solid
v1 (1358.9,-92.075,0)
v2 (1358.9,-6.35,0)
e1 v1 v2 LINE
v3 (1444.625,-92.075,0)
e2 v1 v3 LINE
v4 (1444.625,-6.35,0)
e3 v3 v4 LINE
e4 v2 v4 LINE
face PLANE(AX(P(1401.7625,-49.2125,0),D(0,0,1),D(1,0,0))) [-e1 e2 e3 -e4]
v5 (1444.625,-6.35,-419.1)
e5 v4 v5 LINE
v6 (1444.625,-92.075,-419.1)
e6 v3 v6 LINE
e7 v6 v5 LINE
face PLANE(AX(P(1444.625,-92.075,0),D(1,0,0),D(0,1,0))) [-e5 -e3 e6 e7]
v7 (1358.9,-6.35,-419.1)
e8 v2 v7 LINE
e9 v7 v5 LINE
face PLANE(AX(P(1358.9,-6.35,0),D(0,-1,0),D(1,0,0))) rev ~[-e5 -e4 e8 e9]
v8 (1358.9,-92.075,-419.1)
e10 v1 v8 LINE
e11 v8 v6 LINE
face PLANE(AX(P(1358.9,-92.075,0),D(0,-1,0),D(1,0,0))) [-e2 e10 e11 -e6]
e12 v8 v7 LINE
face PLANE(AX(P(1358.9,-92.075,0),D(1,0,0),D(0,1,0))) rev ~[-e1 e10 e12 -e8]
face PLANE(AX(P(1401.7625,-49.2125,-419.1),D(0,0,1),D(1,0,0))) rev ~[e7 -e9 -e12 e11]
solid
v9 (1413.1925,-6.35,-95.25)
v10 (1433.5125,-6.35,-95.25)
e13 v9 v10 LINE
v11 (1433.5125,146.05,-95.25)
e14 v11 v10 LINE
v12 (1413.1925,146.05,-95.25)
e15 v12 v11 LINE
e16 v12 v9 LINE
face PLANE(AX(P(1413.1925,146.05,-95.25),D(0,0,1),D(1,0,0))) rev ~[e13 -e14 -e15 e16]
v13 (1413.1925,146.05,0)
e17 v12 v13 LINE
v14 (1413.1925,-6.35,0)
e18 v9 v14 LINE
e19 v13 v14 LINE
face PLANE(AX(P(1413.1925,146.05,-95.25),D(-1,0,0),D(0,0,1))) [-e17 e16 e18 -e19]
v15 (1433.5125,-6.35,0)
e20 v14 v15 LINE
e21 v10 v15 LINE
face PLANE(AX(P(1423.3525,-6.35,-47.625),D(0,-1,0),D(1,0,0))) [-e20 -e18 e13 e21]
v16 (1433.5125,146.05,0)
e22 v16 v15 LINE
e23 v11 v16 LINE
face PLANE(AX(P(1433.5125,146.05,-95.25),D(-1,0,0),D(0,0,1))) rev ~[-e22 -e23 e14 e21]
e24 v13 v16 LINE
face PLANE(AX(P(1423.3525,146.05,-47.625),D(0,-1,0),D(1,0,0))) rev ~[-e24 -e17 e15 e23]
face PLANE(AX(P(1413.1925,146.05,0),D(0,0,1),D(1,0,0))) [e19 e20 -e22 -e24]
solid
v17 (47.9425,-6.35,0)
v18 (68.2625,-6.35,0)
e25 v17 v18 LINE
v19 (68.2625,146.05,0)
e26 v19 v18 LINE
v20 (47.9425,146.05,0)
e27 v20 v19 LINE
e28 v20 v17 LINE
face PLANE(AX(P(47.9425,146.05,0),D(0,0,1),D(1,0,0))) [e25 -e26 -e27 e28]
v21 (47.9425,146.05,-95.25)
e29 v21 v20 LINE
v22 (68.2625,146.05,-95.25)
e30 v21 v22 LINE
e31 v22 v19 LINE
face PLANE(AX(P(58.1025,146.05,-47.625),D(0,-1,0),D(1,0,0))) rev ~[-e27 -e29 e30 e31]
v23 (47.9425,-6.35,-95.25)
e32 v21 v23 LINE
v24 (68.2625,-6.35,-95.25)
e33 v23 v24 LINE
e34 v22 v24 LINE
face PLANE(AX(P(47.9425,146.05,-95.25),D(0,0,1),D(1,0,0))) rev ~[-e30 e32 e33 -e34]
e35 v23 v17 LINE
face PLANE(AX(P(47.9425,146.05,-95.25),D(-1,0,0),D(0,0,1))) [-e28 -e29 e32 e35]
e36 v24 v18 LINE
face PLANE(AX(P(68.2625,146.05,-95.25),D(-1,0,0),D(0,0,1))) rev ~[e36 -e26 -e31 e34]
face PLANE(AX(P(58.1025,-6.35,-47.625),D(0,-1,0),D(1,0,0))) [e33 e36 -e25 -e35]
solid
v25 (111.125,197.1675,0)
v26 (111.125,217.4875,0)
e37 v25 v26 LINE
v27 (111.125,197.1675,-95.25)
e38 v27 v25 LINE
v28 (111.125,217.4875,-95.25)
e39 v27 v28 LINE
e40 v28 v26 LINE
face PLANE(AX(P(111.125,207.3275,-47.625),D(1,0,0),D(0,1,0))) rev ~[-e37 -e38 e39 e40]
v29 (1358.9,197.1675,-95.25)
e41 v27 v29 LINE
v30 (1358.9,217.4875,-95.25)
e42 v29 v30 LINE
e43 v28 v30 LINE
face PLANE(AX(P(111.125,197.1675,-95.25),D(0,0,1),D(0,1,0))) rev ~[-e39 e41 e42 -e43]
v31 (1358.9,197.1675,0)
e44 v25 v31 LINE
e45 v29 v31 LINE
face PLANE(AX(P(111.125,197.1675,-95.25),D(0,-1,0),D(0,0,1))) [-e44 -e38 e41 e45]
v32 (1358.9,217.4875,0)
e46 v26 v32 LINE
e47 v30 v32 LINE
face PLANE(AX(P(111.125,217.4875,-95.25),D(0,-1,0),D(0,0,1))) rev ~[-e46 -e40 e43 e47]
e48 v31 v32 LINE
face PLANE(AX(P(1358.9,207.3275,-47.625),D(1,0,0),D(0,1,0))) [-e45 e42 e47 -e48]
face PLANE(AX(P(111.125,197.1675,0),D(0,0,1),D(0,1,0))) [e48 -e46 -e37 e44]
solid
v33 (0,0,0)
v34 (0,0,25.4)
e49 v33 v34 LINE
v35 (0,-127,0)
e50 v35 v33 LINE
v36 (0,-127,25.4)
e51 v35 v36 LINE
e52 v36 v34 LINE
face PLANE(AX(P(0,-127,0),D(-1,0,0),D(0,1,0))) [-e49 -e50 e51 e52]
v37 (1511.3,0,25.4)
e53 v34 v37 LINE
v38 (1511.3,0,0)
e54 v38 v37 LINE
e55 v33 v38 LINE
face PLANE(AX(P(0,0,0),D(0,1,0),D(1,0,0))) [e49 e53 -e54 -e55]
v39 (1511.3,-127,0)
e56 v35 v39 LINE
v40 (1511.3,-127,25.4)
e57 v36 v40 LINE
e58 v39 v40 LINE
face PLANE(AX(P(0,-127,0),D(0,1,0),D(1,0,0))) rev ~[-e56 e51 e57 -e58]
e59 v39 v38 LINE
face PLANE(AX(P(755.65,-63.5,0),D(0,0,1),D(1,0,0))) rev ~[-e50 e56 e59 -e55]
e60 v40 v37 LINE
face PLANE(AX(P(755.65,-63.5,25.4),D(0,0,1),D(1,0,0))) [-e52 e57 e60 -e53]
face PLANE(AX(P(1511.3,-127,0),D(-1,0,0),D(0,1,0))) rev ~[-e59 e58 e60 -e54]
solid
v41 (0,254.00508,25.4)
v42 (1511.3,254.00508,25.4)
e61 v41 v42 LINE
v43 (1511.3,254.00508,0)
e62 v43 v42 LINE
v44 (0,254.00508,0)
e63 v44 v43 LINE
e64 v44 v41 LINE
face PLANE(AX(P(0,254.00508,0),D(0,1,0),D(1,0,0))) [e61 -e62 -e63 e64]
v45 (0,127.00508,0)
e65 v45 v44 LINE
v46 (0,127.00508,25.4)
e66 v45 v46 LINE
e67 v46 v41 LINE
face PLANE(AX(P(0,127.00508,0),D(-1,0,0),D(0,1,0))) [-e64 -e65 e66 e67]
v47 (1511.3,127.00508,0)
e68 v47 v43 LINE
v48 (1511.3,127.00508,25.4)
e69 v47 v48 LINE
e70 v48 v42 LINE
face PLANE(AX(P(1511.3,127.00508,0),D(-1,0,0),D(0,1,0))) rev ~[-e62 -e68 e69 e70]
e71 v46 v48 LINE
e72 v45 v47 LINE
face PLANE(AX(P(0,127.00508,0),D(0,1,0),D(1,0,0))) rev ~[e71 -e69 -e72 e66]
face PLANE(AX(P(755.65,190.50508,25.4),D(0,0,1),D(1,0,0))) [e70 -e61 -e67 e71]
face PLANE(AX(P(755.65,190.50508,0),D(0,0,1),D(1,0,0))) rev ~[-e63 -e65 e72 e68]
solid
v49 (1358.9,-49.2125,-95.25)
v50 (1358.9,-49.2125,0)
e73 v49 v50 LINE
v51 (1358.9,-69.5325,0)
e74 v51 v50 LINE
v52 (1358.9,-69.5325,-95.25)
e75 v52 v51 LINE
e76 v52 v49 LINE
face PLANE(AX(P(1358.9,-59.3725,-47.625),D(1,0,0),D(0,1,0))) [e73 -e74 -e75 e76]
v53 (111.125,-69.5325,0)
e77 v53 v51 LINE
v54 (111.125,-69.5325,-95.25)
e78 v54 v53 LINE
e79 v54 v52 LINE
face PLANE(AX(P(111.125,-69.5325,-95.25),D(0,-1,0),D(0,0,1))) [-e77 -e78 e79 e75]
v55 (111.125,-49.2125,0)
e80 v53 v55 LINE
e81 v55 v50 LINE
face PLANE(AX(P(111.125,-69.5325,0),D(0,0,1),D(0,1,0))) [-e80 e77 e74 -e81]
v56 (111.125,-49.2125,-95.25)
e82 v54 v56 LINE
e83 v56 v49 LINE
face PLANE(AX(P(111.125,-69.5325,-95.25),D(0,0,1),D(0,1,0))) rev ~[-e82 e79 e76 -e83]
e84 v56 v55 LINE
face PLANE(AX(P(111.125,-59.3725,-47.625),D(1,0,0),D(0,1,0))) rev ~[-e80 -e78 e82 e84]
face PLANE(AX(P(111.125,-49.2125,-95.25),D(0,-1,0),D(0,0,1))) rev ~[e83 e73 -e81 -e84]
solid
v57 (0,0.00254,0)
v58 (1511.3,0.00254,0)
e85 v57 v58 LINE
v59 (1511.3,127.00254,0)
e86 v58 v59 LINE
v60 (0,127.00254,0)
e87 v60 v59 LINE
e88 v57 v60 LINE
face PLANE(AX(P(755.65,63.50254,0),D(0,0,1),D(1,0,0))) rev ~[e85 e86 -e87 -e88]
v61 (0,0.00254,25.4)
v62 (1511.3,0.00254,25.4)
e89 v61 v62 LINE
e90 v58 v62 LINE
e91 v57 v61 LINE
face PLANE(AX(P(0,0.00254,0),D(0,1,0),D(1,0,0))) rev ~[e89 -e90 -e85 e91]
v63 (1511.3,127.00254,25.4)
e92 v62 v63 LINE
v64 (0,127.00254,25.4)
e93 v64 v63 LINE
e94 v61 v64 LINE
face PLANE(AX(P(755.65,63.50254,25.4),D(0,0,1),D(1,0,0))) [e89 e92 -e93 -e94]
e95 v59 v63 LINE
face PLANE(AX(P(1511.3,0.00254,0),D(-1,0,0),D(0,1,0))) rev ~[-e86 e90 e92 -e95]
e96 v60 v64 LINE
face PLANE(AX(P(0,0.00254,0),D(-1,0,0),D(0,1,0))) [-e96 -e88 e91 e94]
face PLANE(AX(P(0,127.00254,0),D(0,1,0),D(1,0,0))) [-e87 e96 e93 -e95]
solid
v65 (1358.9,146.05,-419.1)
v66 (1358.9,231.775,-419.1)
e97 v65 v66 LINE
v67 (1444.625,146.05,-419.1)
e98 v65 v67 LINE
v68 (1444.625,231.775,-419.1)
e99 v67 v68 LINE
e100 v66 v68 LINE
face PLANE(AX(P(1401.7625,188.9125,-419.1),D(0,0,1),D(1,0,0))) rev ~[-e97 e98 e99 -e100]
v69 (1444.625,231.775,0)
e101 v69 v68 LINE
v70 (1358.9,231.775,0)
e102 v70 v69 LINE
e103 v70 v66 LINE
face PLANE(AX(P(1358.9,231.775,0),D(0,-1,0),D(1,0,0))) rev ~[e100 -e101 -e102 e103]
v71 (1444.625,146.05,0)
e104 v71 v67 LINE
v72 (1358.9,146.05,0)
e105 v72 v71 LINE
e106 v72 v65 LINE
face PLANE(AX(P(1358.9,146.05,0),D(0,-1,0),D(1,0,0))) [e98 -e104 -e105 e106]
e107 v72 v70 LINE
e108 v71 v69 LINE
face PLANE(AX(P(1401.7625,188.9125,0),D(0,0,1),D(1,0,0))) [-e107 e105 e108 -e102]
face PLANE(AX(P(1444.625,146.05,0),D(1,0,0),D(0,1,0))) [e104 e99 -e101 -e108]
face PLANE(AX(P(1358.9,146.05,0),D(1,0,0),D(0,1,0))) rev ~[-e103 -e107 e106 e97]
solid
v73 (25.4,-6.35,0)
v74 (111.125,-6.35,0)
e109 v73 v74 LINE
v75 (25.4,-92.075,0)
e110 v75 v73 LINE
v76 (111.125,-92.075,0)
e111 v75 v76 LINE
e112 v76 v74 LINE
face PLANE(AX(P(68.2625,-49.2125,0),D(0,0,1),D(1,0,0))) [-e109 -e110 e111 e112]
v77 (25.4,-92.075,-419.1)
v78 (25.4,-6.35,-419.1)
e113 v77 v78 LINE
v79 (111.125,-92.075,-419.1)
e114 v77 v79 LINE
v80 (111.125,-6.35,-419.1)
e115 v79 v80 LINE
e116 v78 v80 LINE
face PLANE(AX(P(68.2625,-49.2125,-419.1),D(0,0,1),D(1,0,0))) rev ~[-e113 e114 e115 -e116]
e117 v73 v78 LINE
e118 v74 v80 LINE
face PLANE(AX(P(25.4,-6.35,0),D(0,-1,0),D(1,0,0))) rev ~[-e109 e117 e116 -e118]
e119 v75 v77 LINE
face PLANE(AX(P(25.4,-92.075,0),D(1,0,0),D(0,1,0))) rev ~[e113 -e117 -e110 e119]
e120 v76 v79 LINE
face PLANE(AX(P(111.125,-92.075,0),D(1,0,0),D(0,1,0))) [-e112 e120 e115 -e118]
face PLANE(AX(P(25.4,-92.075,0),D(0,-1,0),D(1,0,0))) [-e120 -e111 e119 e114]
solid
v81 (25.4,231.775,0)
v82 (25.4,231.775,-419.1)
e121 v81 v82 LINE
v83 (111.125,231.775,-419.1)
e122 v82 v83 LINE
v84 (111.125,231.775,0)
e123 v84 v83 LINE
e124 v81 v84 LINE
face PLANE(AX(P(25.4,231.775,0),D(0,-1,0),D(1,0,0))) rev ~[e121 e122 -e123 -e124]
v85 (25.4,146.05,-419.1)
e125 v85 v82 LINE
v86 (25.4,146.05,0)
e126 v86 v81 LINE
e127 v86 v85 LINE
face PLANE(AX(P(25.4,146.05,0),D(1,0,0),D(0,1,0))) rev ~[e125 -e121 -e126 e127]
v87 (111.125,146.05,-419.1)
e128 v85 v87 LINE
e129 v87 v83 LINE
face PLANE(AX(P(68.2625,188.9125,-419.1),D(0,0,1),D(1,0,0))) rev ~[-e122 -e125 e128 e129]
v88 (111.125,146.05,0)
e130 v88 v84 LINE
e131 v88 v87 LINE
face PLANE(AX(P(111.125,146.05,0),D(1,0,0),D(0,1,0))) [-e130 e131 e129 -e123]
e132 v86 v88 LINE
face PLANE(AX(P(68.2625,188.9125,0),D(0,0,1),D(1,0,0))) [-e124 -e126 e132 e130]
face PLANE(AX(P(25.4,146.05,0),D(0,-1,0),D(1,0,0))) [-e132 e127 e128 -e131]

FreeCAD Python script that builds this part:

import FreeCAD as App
import Part
import Sketcher

V = App.Vector
Q = App.Units.Quantity

doc = App.newDocument("Part")
params = doc.addObject("Spreadsheet::Sheet", "Params")
for row, (alias, value) in enumerate([
    ("sketch1_height", "5 in"),
    ("sketch1_width", "59.5 in"),
    ("pad1_length", "1 in"),
    ("sketch2_width", "3.375 in"),
    ("pad2_length", "16.5 in"),
    ("sketch3_width", "0.8 in"),
    ("sketch3_height", "3.75 in"),
    ("pad3_length", "49.125 in"),
    ("sketch4_width", "0.8 in"),
    ("sketch4_height", "3.75 in"),
    ("pad4_length", "6 in"),
], start=1):
    params.set(f"A{row}", alias)
    params.set(f"B{row}", "=" + value)
    params.setAlias(f"B{row}", alias)

body = doc.addObject("PartDesign::Body", "Body")
body.AllowCompound = True

# Sketch on XY plane
sketch1 = doc.addObject("Sketcher::SketchObject", "Sketch")
body.addObject(sketch1)
sketch1.AttachmentSupport = (doc.XY_Plane, [""])
sketch1.MapMode = "FlatFace"
sketch1.addGeometry([
    Part.LineSegment(V(0, 0, 0), V(0, -127, 0)),  # 0
    Part.LineSegment(V(0, -127, 0), V(1511.3, -127, 0)),  # 1
    Part.LineSegment(V(1511.3, -127, 0), V(1511.3, 0, 0)),  # 2
    Part.LineSegment(V(1511.3, 0, 0), V(0, 0, 0)),  # 3
    Part.LineSegment(V(0, 127.00254, 0), V(0, 0.00254, 0)),  # 4
    Part.LineSegment(V(0, 0.00254, 0), V(1511.3, 0.00254, 0)),  # 5
    Part.LineSegment(V(1511.3, 0.00254, 0), V(1511.3, 127.00254, 0)),  # 6
    Part.LineSegment(V(1511.3, 127.00254, 0), V(0, 127.00254, 0)),  # 7
    Part.LineSegment(V(0, 254.00508, 0), V(0, 127.00508, 0)),  # 8
    Part.LineSegment(V(0, 127.00508, 0), V(1511.3, 127.00508, 0)),  # 9
    Part.LineSegment(V(1511.3, 127.00508, 0), V(1511.3, 254.00508, 0)),  # 10
    Part.LineSegment(V(1511.3, 254.00508, 0), V(0, 254.00508, 0)),  # 11
], False)
sketch1.addConstraint([
    Sketcher.Constraint("Coincident", 0, 2, 1, 1),
    Sketcher.Constraint("Coincident", 1, 2, 2, 1),
    Sketcher.Constraint("Coincident", 2, 2, 3, 1),
    Sketcher.Constraint("Coincident", 3, 2, 0, 1),
    Sketcher.Constraint("Coincident", 4, 2, 5, 1),
    Sketcher.Constraint("Coincident", 5, 2, 6, 1),
    Sketcher.Constraint("Coincident", 6, 2, 7, 1),
    Sketcher.Constraint("Coincident", 7, 2, 4, 1),
    Sketcher.Constraint("Coincident", 8, 2, 9, 1),
    Sketcher.Constraint("Coincident", 9, 2, 10, 1),
    Sketcher.Constraint("Coincident", 10, 2, 11, 1),
    Sketcher.Constraint("Coincident", 11, 2, 8, 1),
    Sketcher.Constraint("Vertical", 0),
    Sketcher.Constraint("Horizontal", 1),
    Sketcher.Constraint("Vertical", 2),
    Sketcher.Constraint("Horizontal", 3),
    Sketcher.Constraint("Vertical", 4),
    Sketcher.Constraint("Horizontal", 5),
    Sketcher.Constraint("Vertical", 6),
    Sketcher.Constraint("Horizontal", 7),
    Sketcher.Constraint("Vertical", 8),
    Sketcher.Constraint("Horizontal", 9),
    Sketcher.Constraint("Vertical", 10),
    Sketcher.Constraint("Horizontal", 11),
    Sketcher.Constraint("Coincident", 3, 2, -1, 1),
    Sketcher.Constraint("PointOnObject", 4, 2, -2),
    Sketcher.Constraint("PointOnObject", 8, 2, -2),
    Sketcher.Constraint("Vertical", 2, 2, 5, 2),
    Sketcher.Constraint("Vertical", 6, 2, 9, 2),
    Sketcher.Constraint("Equal", 2, 4),
    Sketcher.Constraint("Equal", 6, 8),
    Sketcher.Constraint("DistanceY", 0, 2, 0, 1, Q("5 in")),
    Sketcher.Constraint("DistanceX", 1, 1, 1, 2, Q("59.5 in")),
    Sketcher.Constraint("DistanceY", -1, 1, 4, 2, Q("0.0001 in")),
    Sketcher.Constraint("DistanceY", -1, 1, 8, 2, Q("5.0002 in")),
])
sketch1.setExpression("Constraints[31]", "Params.sketch1_height")
sketch1.setExpression("Constraints[32]", "Params.sketch1_width")
pad1 = doc.addObject("PartDesign::Pad", "Pad")
body.addObject(pad1)
pad1.Profile = sketch1
pad1.setExpression("Length", "Params.pad1_length")
body2 = doc.addObject("PartDesign::Body", "Body001")
body2.AllowCompound = True

# Sketch on XY plane
sketch2 = doc.addObject("Sketcher::SketchObject", "Sketch001")
body2.addObject(sketch2)
sketch2.AttachmentSupport = (doc.getObject("XY_Plane001"), [""])
sketch2.MapMode = "FlatFace"
sketch2.addGeometry([
    Part.LineSegment(V(25.4, 231.775, 0), V(25.4, 146.05, 0)),  # 0
    Part.LineSegment(V(25.4, 146.05, 0), V(111.125, 146.05, 0)),  # 1
    Part.LineSegment(V(111.125, 146.05, 0), V(111.125, 231.775, 0)),  # 2
    Part.LineSegment(V(111.125, 231.775, 0), V(25.4, 231.775, 0)),  # 3
    Part.LineSegment(V(25.4, -6.35, 0), V(25.4, -92.075, 0)),  # 4
    Part.LineSegment(V(25.4, -92.075, 0), V(111.125, -92.075, 0)),  # 5
    Part.LineSegment(V(111.125, -92.075, 0), V(111.125, -6.35, 0)),  # 6
    Part.LineSegment(V(111.125, -6.35, 0), V(25.4, -6.35, 0)),  # 7
    Part.LineSegment(V(1358.9, 231.775, 0), V(1358.9, 146.05, 0)),  # 8
    Part.LineSegment(V(1358.9, 146.05, 0), V(1444.625, 146.05, 0)),  # 9
    Part.LineSegment(V(1444.625, 146.05, 0), V(1444.625, 231.775, 0)),  # 10
    Part.LineSegment(V(1444.625, 231.775, 0), V(1358.9, 231.775, 0)),  # 11
    Part.LineSegment(V(1358.9, -6.35, 0), V(1358.9, -92.075, 0)),  # 12
    Part.LineSegment(V(1358.9, -92.075, 0), V(1444.625, -92.075, 0)),  # 13
    Part.LineSegment(V(1444.625, -92.075, 0), V(1444.625, -6.35, 0)),  # 14
    Part.LineSegment(V(1444.625, -6.35, 0), V(1358.9, -6.35, 0)),  # 15
], False)
sketch2.addConstraint([
    Sketcher.Constraint("Coincident", 0, 2, 1, 1),
    Sketcher.Constraint("Coincident", 1, 2, 2, 1),
    Sketcher.Constraint("Coincident", 2, 2, 3, 1),
    Sketcher.Constraint("Coincident", 3, 2, 0, 1),
    Sketcher.Constraint("Coincident", 4, 2, 5, 1),
    Sketcher.Constraint("Coincident", 5, 2, 6, 1),
    Sketcher.Constraint("Coincident", 6, 2, 7, 1),
    Sketcher.Constraint("Coincident", 7, 2, 4, 1),
    Sketcher.Constraint("Coincident", 8, 2, 9, 1),
    Sketcher.Constraint("Coincident", 9, 2, 10, 1),
    Sketcher.Constraint("Coincident", 10, 2, 11, 1),
    Sketcher.Constraint("Coincident", 11, 2, 8, 1),
    Sketcher.Constraint("Coincident", 12, 2, 13, 1),
    Sketcher.Constraint("Coincident", 13, 2, 14, 1),
    Sketcher.Constraint("Coincident", 14, 2, 15, 1),
    Sketcher.Constraint("Coincident", 15, 2, 12, 1),
    Sketcher.Constraint("Vertical", 0),
    Sketcher.Constraint("Horizontal", 1),
    Sketcher.Constraint("Vertical", 2),
    Sketcher.Constraint("Horizontal", 3),
    Sketcher.Constraint("Vertical", 4),
    Sketcher.Constraint("Horizontal", 5),
    Sketcher.Constraint("Vertical", 6),
    Sketcher.Constraint("Horizontal", 7),
    Sketcher.Constraint("Vertical", 8),
    Sketcher.Constraint("Horizontal", 9),
    Sketcher.Constraint("Vertical", 10),
    Sketcher.Constraint("Horizontal", 11),
    Sketcher.Constraint("Vertical", 12),
    Sketcher.Constraint("Horizontal", 13),
    Sketcher.Constraint("Vertical", 14),
    Sketcher.Constraint("Horizontal", 15),
    Sketcher.Constraint("Horizontal", 1, 2, 8, 2),
    Sketcher.Constraint("Horizontal", 3, 2, 10, 2),
    Sketcher.Constraint("Horizontal", 5, 2, 12, 2),
    Sketcher.Constraint("Horizontal", 7, 2, 14, 2),
    Sketcher.Constraint("Vertical", 3, 2, 4, 2),
    Sketcher.Constraint("Vertical", 2, 2, 5, 2),
    Sketcher.Constraint("Vertical", 11, 2, 12, 2),
    Sketcher.Constraint("Vertical", 10, 2, 13, 2),
    Sketcher.Constraint("Equal", 7, 9),
    Sketcher.Constraint("Equal", 15, 0),
    Sketcher.Constraint("Equal", 2, 4),
    Sketcher.Constraint("DistanceX", -1, 1, 0, 2, Q("1 in")),
    Sketcher.Constraint("DistanceY", 6, 2, 1, 2, Q("6 in")),
    Sketcher.Constraint("DistanceX", -1, 1, 8, 2, Q("53.5 in")),
    Sketcher.Constraint("DistanceX", 1, 1, 1, 2, Q("3.375 in")),
    Sketcher.Constraint("DistanceY", -1, 1, 0, 2, Q("5.75 in")),
])
sketch2.setExpression("Constraints[46]", "Params.sketch2_width")
pad2 = doc.addObject("PartDesign::Pad", "Pad001")
body2.addObject(pad2)
pad2.Profile = sketch2
pad2.setExpression("Length", "Params.pad2_length")
pad2.Reversed = True
body3 = doc.addObject("PartDesign::Body", "Body002")
body3.AllowCompound = True

# Sketch on YZ plane
sketch3 = doc.addObject("Sketcher::SketchObject", "Sketch002")
body3.addObject(sketch3)
sketch3.AttachmentSupport = (doc.getObject("YZ_Plane002"), [""])
sketch3.MapMode = "FlatFace"
sketch3.AttachmentOffset = App.Placement(V(0, 0, 4.375 * 25.4), App.Rotation())
sketch3.addGeometry([
    Part.LineSegment(V(-69.5325, 0, 0), V(-69.5325, -95.25, 0)),  # 0
    Part.LineSegment(V(-69.5325, -95.25, 0), V(-49.2125, -95.25, 0)),  # 1
    Part.LineSegment(V(-49.2125, -95.25, 0), V(-49.2125, 0, 0)),  # 2
    Part.LineSegment(V(-49.2125, 0, 0), V(-69.5325, 0, 0)),  # 3
    Part.LineSegment(V(197.1675, 0, 0), V(197.1675, -95.25, 0)),  # 4
    Part.LineSegment(V(197.1675, -95.25, 0), V(217.4875, -95.25, 0)),  # 5
    Part.LineSegment(V(217.4875, -95.25, 0), V(217.4875, 0, 0)),  # 6
    Part.LineSegment(V(217.4875, 0, 0), V(197.1675, 0, 0)),  # 7
], False)
sketch3.addConstraint([
    Sketcher.Constraint("Coincident", 0, 2, 1, 1),
    Sketcher.Constraint("Coincident", 1, 2, 2, 1),
    Sketcher.Constraint("Coincident", 2, 2, 3, 1),
    Sketcher.Constraint("Coincident", 3, 2, 0, 1),
    Sketcher.Constraint("Coincident", 4, 2, 5, 1),
    Sketcher.Constraint("Coincident", 5, 2, 6, 1),
    Sketcher.Constraint("Coincident", 6, 2, 7, 1),
    Sketcher.Constraint("Coincident", 7, 2, 4, 1),
    Sketcher.Constraint("Vertical", 0),
    Sketcher.Constraint("Horizontal", 1),
    Sketcher.Constraint("Vertical", 2),
    Sketcher.Constraint("Horizontal", 3),
    Sketcher.Constraint("Vertical", 4),
    Sketcher.Constraint("Horizontal", 5),
    Sketcher.Constraint("Vertical", 6),
    Sketcher.Constraint("Horizontal", 7),
    Sketcher.Constraint("PointOnObject", 2, 2, -1),
    Sketcher.Constraint("PointOnObject", 6, 2, -1),
    Sketcher.Constraint("Horizontal", 1, 2, 4, 2),
    Sketcher.Constraint("Equal", 3, 5),
    Sketcher.Constraint("DistanceX", 1, 1, 1, 2, Q("0.8 in")),
    Sketcher.Constraint("DistanceY", 0, 2, 0, 1, Q("3.75 in")),
    Sketcher.Constraint("DistanceX", 1, 2, 4, 2, Q("9.7 in")),
    Sketcher.Constraint("DistanceX", 1, 2, -1, 1, Q("1.9375 in")),
])
sketch3.setExpression("Constraints[20]", "Params.sketch3_width")
sketch3.setExpression("Constraints[21]", "Params.sketch3_height")
pad3 = doc.addObject("PartDesign::Pad", "Pad002")
body3.addObject(pad3)
pad3.Profile = sketch3
pad3.setExpression("Length", "Params.pad3_length")
body4 = doc.addObject("PartDesign::Body", "Body003")
body4.AllowCompound = True

# Sketch on XZ plane
sketch4 = doc.addObject("Sketcher::SketchObject", "Sketch003")
body4.addObject(sketch4)
sketch4.AttachmentSupport = (doc.getObject("XZ_Plane003"), [""])
sketch4.MapMode = "FlatFace"
sketch4.AttachmentOffset = App.Placement(V(0, 0, -5.75 * 25.4), App.Rotation())
sketch4.addGeometry([
    Part.LineSegment(V(47.9425, 0, 0), V(47.9425, -95.25, 0)),  # 0
    Part.LineSegment(V(47.9425, -95.25, 0), V(68.2625, -95.25, 0)),  # 1
    Part.LineSegment(V(68.2625, -95.25, 0), V(68.2625, 0, 0)),  # 2
    Part.LineSegment(V(68.2625, 0, 0), V(47.9425, 0, 0)),  # 3
    Part.LineSegment(V(1413.1925, 0, 0), V(1413.1925, -95.25, 0)),  # 4
    Part.LineSegment(V(1413.1925, -95.25, 0), V(1433.5125, -95.25, 0)),  # 5
    Part.LineSegment(V(1433.5125, -95.25, 0), V(1433.5125, 0, 0)),  # 6
    Part.LineSegment(V(1433.5125, 0, 0), V(1413.1925, 0, 0)),  # 7
], False)
sketch4.addConstraint([
    Sketcher.Constraint("Coincident", 0, 2, 1, 1),
    Sketcher.Constraint("Coincident", 1, 2, 2, 1),
    Sketcher.Constraint("Coincident", 2, 2, 3, 1),
    Sketcher.Constraint("Coincident", 3, 2, 0, 1),
    Sketcher.Constraint("Coincident", 4, 2, 5, 1),
    Sketcher.Constraint("Coincident", 5, 2, 6, 1),
    Sketcher.Constraint("Coincident", 6, 2, 7, 1),
    Sketcher.Constraint("Coincident", 7, 2, 4, 1),
    Sketcher.Constraint("Vertical", 0),
    Sketcher.Constraint("Horizontal", 1),
    Sketcher.Constraint("Vertical", 2),
    Sketcher.Constraint("Horizontal", 3),
    Sketcher.Constraint("Vertical", 4),
    Sketcher.Constraint("Horizontal", 5),
    Sketcher.Constraint("Vertical", 6),
    Sketcher.Constraint("Horizontal", 7),
    Sketcher.Constraint("PointOnObject", 2, 2, -1),
    Sketcher.Constraint("PointOnObject", 6, 2, -1),
    Sketcher.Constraint("Horizontal", 1, 2, 4, 2),
    Sketcher.Constraint("Equal", 3, 5),
    Sketcher.Constraint("DistanceX", 1, 1, 1, 2, Q("0.8 in")),
    Sketcher.Constraint("DistanceY", 0, 2, 0, 1, Q("3.75 in")),
    Sketcher.Constraint("DistanceX", 1, 2, 4, 2, Q("52.95 in")),
    Sketcher.Constraint("DistanceX", -1, 1, 1, 2, Q("2.6875 in")),
])
sketch4.setExpression("Constraints[20]", "Params.sketch4_width")
sketch4.setExpression("Constraints[21]", "Params.sketch4_height")
pad4 = doc.addObject("PartDesign::Pad", "Pad003")
body4.addObject(pad4)
pad4.Profile = sketch4
pad4.setExpression("Length", "Params.pad4_length")

doc.recompute()
